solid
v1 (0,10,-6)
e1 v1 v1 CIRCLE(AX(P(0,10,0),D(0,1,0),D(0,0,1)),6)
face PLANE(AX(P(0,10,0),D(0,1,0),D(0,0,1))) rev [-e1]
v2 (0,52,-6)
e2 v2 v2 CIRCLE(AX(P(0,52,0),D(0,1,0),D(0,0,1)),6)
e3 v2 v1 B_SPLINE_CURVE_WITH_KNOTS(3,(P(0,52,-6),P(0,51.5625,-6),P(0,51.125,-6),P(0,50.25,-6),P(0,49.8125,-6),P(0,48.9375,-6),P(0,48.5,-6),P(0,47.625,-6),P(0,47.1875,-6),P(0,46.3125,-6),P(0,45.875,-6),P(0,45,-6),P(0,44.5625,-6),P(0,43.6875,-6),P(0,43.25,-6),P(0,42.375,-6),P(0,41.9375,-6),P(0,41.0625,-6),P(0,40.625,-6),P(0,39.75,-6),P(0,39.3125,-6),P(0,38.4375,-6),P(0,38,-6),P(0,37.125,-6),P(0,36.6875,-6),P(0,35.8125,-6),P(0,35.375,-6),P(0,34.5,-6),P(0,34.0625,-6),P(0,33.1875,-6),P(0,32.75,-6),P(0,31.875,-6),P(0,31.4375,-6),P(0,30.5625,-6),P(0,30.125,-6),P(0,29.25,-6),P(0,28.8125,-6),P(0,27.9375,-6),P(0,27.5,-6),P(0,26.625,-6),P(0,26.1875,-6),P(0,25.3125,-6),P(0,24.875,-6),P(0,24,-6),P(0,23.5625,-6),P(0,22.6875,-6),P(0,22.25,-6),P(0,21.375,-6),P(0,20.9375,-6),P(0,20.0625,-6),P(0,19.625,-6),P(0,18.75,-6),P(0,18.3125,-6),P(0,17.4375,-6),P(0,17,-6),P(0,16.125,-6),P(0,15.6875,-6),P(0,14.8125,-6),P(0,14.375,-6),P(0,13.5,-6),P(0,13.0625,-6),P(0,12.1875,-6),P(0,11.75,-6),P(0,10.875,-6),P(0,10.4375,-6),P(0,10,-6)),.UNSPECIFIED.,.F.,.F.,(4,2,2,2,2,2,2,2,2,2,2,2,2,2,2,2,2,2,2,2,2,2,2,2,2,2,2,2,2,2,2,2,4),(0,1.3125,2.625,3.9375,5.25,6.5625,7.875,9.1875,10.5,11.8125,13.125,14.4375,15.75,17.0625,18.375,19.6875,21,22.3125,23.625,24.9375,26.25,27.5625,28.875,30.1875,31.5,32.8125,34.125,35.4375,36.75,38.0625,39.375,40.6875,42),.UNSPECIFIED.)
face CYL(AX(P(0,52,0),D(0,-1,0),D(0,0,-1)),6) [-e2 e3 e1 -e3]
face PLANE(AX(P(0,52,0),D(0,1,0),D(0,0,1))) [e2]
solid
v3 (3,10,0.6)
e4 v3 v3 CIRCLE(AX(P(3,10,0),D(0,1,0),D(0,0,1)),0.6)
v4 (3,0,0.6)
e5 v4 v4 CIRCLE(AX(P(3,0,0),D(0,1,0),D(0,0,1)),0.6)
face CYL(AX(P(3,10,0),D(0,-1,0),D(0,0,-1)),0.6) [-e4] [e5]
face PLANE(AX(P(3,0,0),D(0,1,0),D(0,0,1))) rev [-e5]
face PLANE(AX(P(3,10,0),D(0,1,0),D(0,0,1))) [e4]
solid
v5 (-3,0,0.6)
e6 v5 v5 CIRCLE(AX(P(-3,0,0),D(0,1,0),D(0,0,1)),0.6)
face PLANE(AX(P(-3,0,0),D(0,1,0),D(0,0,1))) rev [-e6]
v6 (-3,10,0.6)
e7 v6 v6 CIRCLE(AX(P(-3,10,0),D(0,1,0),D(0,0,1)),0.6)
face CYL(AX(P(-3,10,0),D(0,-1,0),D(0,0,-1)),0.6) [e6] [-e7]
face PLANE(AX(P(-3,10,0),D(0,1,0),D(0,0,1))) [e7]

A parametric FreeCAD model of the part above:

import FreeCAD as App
import Part
import Sketcher
from FreeCAD import Vector

doc = App.newDocument("Part")
params = doc.addObject("Spreadsheet::Sheet", "Params")
for row, (alias, value) in enumerate([
    ("sketch1_diameter", "1.2 mm"),
    ("pad1_length", "10 mm"),
    ("sketch2_diameter", "1.2 mm"),
    ("pad2_length", "10 mm"),
    ("sketch3_diameter", "12 mm"),
    ("pad3_length", "42 mm"),
], start=1):
    params.set(f"A{row}", alias)
    params.set(f"B{row}", "=" + value)
    params.setAlias(f"B{row}", alias)

body = doc.addObject("PartDesign::Body", "Body")

sketch1 = body.newObject("Sketcher::SketchObject", "Sketch")
sketch1.AttachmentSupport = (doc.getObject("XZ_Plane"), [""])
sketch1.MapMode = "FlatFace"
sketch1.addGeometry(Part.Circle(Vector(-3, 0, 0), Vector(0, 0, 1), 0.6), False)
sketch1.addConstraint([
    Sketcher.Constraint("PointOnObject", 0, 3, -1),
    Sketcher.Constraint("Diameter", 0, 1.2),
    Sketcher.Constraint("DistanceX", 0, 3, -1, 1, 3.0),
])
sketch1.setExpression("Constraints[1]", "Params.sketch1_diameter")
pad1 = body.newObject("PartDesign::Pad", "Pad")
pad1.Profile = sketch1
pad1.setExpression("Length", "Params.pad1_length")
pad1.Reversed = True
body2 = doc.addObject("PartDesign::Body", "Body001")

sketch2 = body2.newObject("Sketcher::SketchObject", "Sketch001")
sketch2.AttachmentSupport = (doc.getObject("XZ_Plane001"), [""])
sketch2.MapMode = "FlatFace"
sketch2.addGeometry(Part.Circle(Vector(3, 0, 0), Vector(0, 0, 1), 0.6), False)
sketch2.addConstraint([
    Sketcher.Constraint("PointOnObject", 0, 3, -1),
    Sketcher.Constraint("Diameter", 0, 1.2),
    Sketcher.Constraint("DistanceX", -1, 1, 0, 3, 3.0),
])
sketch2.setExpression("Constraints[1]", "Params.sketch2_diameter")
pad2 = body2.newObject("PartDesign::Pad", "Pad001")
pad2.Profile = sketch2
pad2.setExpression("Length", "Params.pad2_length")
pad2.Reversed = True
body3 = doc.addObject("PartDesign::Body", "Body002")

sketch3 = body3.newObject("Sketcher::SketchObject", "Sketch002")
sketch3.AttachmentSupport = (doc.getObject("XZ_Plane002"), [""])
sketch3.MapMode = "FlatFace"
sketch3.AttachmentOffset = App.Placement(Vector(0, 0, -10), App.Rotation())
sketch3.addGeometry(Part.Circle(Vector(0, 0, 0), Vector(0, 0, 1), 6), False)
sketch3.addConstraint([
    Sketcher.Constraint("Coincident", 0, 3, -1, 1),
    Sketcher.Constraint("Diameter", 0, 12.0),
])
sketch3.setExpression("Constraints[1]", "Params.sketch3_diameter")
pad3 = body3.newObject("PartDesign::Pad", "Pad002")
pad3.Profile = sketch3
pad3.setExpression("Length", "Params.pad3_length")
pad3.Reversed = True

doc.recompute()
